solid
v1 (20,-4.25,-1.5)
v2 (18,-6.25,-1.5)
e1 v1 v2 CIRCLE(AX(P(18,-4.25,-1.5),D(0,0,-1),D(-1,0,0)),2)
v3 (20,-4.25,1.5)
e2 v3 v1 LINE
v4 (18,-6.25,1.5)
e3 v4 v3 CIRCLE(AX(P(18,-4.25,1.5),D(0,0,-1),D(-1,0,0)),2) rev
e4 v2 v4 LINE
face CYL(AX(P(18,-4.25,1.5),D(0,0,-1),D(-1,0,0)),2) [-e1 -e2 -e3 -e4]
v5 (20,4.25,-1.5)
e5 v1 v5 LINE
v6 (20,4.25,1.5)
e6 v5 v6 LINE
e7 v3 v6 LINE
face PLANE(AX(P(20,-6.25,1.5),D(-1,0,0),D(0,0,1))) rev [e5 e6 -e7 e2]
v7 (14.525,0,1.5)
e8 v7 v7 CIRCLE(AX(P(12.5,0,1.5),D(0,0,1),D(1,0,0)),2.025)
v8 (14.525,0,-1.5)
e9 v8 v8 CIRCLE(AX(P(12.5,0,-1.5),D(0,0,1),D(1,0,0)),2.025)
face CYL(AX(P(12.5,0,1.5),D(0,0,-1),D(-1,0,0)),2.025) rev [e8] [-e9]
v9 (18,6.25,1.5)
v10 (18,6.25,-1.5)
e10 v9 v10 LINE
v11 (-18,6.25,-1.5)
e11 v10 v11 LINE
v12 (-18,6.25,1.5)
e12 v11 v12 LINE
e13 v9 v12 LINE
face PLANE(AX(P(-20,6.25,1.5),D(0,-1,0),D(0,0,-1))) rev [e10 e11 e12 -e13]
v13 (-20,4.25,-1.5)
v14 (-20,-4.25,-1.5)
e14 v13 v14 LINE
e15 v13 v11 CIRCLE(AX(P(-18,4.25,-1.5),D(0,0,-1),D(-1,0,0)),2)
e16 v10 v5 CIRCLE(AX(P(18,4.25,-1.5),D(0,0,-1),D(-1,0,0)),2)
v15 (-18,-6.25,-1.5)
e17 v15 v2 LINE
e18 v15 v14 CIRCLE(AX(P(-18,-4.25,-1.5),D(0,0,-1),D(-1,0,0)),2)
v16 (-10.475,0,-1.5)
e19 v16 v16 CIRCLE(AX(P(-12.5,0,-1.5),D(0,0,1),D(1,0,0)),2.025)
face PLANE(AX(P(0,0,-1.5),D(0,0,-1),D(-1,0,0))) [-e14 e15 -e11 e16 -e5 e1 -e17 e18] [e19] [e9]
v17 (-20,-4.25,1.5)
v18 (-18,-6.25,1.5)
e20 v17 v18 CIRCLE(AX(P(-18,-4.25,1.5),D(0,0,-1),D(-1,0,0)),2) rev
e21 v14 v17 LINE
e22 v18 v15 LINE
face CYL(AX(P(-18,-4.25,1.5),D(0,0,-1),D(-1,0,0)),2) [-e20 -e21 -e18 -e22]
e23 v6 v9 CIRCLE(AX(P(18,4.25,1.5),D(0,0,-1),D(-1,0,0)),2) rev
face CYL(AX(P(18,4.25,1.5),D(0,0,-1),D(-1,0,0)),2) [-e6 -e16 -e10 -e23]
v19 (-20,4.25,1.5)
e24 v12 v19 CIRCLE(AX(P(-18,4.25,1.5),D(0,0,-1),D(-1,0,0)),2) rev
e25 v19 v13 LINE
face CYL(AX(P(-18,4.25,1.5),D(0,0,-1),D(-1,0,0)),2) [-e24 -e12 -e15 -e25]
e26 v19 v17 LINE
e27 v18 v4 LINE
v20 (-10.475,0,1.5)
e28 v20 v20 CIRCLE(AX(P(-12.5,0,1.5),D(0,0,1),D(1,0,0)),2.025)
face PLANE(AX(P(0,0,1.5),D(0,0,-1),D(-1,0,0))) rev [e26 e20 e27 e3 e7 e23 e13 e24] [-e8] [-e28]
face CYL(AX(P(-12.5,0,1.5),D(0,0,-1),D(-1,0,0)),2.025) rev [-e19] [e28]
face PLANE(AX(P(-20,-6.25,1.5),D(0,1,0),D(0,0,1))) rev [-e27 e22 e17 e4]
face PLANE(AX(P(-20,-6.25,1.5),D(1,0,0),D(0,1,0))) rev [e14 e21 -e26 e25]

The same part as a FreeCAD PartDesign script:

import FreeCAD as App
import Part
import Sketcher

V = App.Vector
Q = App.Units.Quantity


def edges_at(feature, points):
    """Names of the edges that pass closest to the given points."""
    edges = feature.Shape.Edges
    near = lambda p: min(range(len(edges)), key=lambda i: edges[i].distToShape(Part.Vertex(*p))[0])
    return sorted({f"Edge{near(p) + 1}" for p in points})

doc = App.newDocument("Part")
body = doc.addObject("PartDesign::Body", "Body")

# Sketch on XY plane
sketch1 = body.newObject("Sketcher::SketchObject", "Sketch")
sketch1.AttachmentSupport = (doc.getObject("XY_Plane"), [""])
sketch1.MapMode = "FlatFace"
sketch1.addGeometry(Part.LineSegment(V(-20, 6.2, 0), V(-20, -6.2, 0)), False)
sketch1.addGeometry(Part.LineSegment(V(-20, -6.2, 0), V(20, -6.2, 0)), False)
sketch1.addGeometry(Part.LineSegment(V(20, -6.2, 0), V(20, 6.2, 0)), False)
sketch1.addGeometry(Part.LineSegment(V(20, 6.2, 0), V(-20, 6.2, 0)), False)
sketch1.addGeometry(Part.Circle(V(-12.5, 0, 0), V(0, 0, 1), 2), False)
sketch1.addGeometry(Part.Circle(V(12.5, 0, 0), V(0, 0, 1), 2), False)
sketch1.addConstraint(Sketcher.Constraint("Coincident", 0, 2, 1, 1))
sketch1.addConstraint(Sketcher.Constraint("Coincident", 1, 2, 2, 1))
sketch1.addConstraint(Sketcher.Constraint("Coincident", 2, 2, 3, 1))
sketch1.addConstraint(Sketcher.Constraint("Coincident", 3, 2, 0, 1))
sketch1.addConstraint(Sketcher.Constraint("Vertical", 0))
sketch1.addConstraint(Sketcher.Constraint("Horizontal", 1))
sketch1.addConstraint(Sketcher.Constraint("Vertical", 2))
sketch1.addConstraint(Sketcher.Constraint("Horizontal", 3))
sketch1.addConstraint(Sketcher.Constraint("Equal", 4, 5))
sketch1.addConstraint(Sketcher.Constraint("Symmetric", 4, 3, 5, 3, -1, 1))
sketch1.addConstraint(Sketcher.Constraint("Symmetric", 0, 2, 2, 2, -1, 1))
sketch1.addConstraint(Sketcher.Constraint("PointOnObject", 4, 3, -1))
sketch1.addConstraint(Sketcher.Constraint("Diameter", 4, Q("4.05 mm")))
sketch1.addConstraint(Sketcher.Constraint("DistanceX", 1, 1, 1, 2, Q("40 mm")))
sketch1.addConstraint(Sketcher.Constraint("DistanceY", 0, 2, 0, 1, Q("12.5 mm")))
sketch1.addConstraint(Sketcher.Constraint("DistanceX", 4, 3, 5, 3, Q("25 mm")))
pad1 = body.newObject("PartDesign::Pad", "Pad")
pad1.Profile = sketch1
pad1.Length = 3
pad1.Midplane = True
doc.recompute()

fillet = body.newObject("PartDesign::Fillet", "Fillet")
fillet.Base = (pad1, edges_at(pad1, [
    (20, -6.25, 0),
    (-20, -6.25, 0),
    (-20, 6.25, 0),
    (20, 6.25, 0),
]))
fillet.Radius = 2

doc.recompute()
